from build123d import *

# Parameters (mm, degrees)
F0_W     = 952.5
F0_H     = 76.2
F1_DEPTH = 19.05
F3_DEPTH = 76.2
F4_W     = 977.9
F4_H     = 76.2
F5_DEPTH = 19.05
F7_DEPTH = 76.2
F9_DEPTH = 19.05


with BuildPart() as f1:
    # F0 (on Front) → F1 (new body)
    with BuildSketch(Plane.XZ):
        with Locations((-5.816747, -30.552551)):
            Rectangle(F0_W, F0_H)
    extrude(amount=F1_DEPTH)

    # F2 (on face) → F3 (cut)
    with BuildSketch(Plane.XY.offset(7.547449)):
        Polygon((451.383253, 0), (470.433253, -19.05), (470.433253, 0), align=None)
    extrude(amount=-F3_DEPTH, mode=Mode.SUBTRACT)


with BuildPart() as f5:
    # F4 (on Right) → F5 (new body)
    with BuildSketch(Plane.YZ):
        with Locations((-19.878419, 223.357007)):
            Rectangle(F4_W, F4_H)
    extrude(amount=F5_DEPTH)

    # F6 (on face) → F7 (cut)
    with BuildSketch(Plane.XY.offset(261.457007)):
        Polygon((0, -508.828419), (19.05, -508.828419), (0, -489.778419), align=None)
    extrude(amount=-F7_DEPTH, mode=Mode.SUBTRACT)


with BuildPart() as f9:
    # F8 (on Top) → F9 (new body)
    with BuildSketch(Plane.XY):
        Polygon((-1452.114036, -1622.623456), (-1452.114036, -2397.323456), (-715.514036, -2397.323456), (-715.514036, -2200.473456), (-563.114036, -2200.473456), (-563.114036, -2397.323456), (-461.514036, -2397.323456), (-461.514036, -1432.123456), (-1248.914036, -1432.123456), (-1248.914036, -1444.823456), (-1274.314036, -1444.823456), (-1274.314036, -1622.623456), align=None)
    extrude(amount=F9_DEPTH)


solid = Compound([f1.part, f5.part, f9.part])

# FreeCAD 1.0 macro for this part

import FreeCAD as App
import Part
import Sketcher

V = App.Vector
Q = App.Units.Quantity

doc = App.newDocument("Part")
body = doc.addObject("PartDesign::Body", "Body")

# Sketch on XZ plane
sketch1 = body.newObject("Sketcher::SketchObject", "Sketch")
sketch1.AttachmentSupport = (doc.getObject("XZ_Plane"), [""])
sketch1.MapMode = "FlatFace"
sketch1.addGeometry(Part.LineSegment(V(-482, 8, 0), V(-482, -69, 0)), False)
sketch1.addGeometry(Part.LineSegment(V(-482, -69, 0), V(470, -69, 0)), False)
sketch1.addGeometry(Part.LineSegment(V(470, -69, 0), V(470, 8, 0)), False)
sketch1.addGeometry(Part.LineSegment(V(470, 8, 0), V(-482, 8, 0)), False)
sketch1.addConstraint(Sketcher.Constraint("Coincident", 0, 2, 1, 1))
sketch1.addConstraint(Sketcher.Constraint("Coincident", 1, 2, 2, 1))
sketch1.addConstraint(Sketcher.Constraint("Coincident", 2, 2, 3, 1))
sketch1.addConstraint(Sketcher.Constraint("Coincident", 3, 2, 0, 1))
sketch1.addConstraint(Sketcher.Constraint("Vertical", 0))
sketch1.addConstraint(Sketcher.Constraint("Horizontal", 1))
sketch1.addConstraint(Sketcher.Constraint("Vertical", 2))
sketch1.addConstraint(Sketcher.Constraint("Horizontal", 3))
sketch1.addConstraint(Sketcher.Constraint("DistanceY", 0, 2, 0, 1, Q("3 in")))
sketch1.addConstraint(Sketcher.Constraint("DistanceX", 1, 1, 1, 2, Q("37.5 in")))
sketch1.addConstraint(Sketcher.Constraint("DistanceY", 0, 2, -1, 1, Q("68.652551 mm")))
sketch1.addConstraint(Sketcher.Constraint("DistanceX", 0, 2, -1, 1, Q("482.066747 mm")))
pad1 = body.newObject("PartDesign::Pad", "Pad")
pad1.Profile = sketch1
pad1.Length = Q("0.75 in")

# Sketch on XY plane
sketch2 = body.newObject("Sketcher::SketchObject", "Sketch001")
sketch2.AttachmentSupport = (doc.getObject("XY_Plane"), [""])
sketch2.MapMode = "FlatFace"
sketch2.AttachmentOffset = App.Placement(V(0, 0, 7.547449), App.Rotation())
sketch2.addGeometry(Part.LineSegment(V(451, 0, 0), V(470, -19, 0)), False)
sketch2.addGeometry(Part.LineSegment(V(470, -19, 0), V(470, 0, 0)), False)
sketch2.addGeometry(Part.LineSegment(V(470, 0, 0), V(451, 0, 0)), False)
sketch2.addConstraint(Sketcher.Constraint("Coincident", 0, 2, 1, 1))
sketch2.addConstraint(Sketcher.Constraint("Coincident", 1, 2, 2, 1))
sketch2.addConstraint(Sketcher.Constraint("Coincident", 2, 2, 0, 1))
sketch2.addConstraint(Sketcher.Constraint("Vertical", 1))
sketch2.addConstraint(Sketcher.Constraint("Horizontal", 2))
sketch2.addConstraint(Sketcher.Constraint("PointOnObject", 1, 2, -1))
sketch2.addConstraint(Sketcher.Constraint("Equal", 2, 1))
sketch2.addConstraint(Sketcher.Constraint("DistanceX", 2, 2, 2, 1, Q("0.75 in")))
sketch2.addConstraint(Sketcher.Constraint("DistanceX", -1, 1, 0, 2, Q("470.433253 mm")))
pocket1 = body.newObject("PartDesign::Pocket", "Pocket")
pocket1.Profile = sketch2
pocket1.Length = Q("3 in")
body2 = doc.addObject("PartDesign::Body", "Body001")

# Sketch on YZ plane
sketch3 = body2.newObject("Sketcher::SketchObject", "Sketch002")
sketch3.AttachmentSupport = (doc.getObject("YZ_Plane001"), [""])
sketch3.MapMode = "FlatFace"
sketch3.addGeometry(Part.LineSegment(V(-509, 261, 0), V(-509, 185, 0)), False)
sketch3.addGeometry(Part.LineSegment(V(-509, 185, 0), V(469, 185, 0)), False)
sketch3.addGeometry(Part.LineSegment(V(469, 185, 0), V(469, 261, 0)), False)
sketch3.addGeometry(Part.LineSegment(V(469, 261, 0), V(-509, 261, 0)), False)
sketch3.addConstraint(Sketcher.Constraint("Coincident", 0, 2, 1, 1))
sketch3.addConstraint(Sketcher.Constraint("Coincident", 1, 2, 2, 1))
sketch3.addConstraint(Sketcher.Constraint("Coincident", 2, 2, 3, 1))
sketch3.addConstraint(Sketcher.Constraint("Coincident", 3, 2, 0, 1))
sketch3.addConstraint(Sketcher.Constraint("Vertical", 0))
sketch3.addConstraint(Sketcher.Constraint("Horizontal", 1))
sketch3.addConstraint(Sketcher.Constraint("Vertical", 2))
sketch3.addConstraint(Sketcher.Constraint("Horizontal", 3))
sketch3.addConstraint(Sketcher.Constraint("DistanceY", 0, 2, 0, 1, Q("3 in")))
sketch3.addConstraint(Sketcher.Constraint("DistanceX", 1, 1, 1, 2, Q("38.5 in")))
sketch3.addConstraint(Sketcher.Constraint("DistanceX", 0, 2, -1, 1, Q("508.828419 mm")))
sketch3.addConstraint(Sketcher.Constraint("DistanceY", -1, 1, 0, 2, Q("185.257007 mm")))
pad2 = body2.newObject("PartDesign::Pad", "Pad001")
pad2.Profile = sketch3
pad2.Length = Q("0.75 in")

# Sketch on XY plane
sketch4 = body2.newObject("Sketcher::SketchObject", "Sketch003")
sketch4.AttachmentSupport = (doc.getObject("XY_Plane001"), [""])
sketch4.MapMode = "FlatFace"
sketch4.AttachmentOffset = App.Placement(V(0, 0, 261.457007), App.Rotation())
sketch4.addGeometry(Part.LineSegment(V(0, -509, 0), V(19, -509, 0)), False)
sketch4.addGeometry(Part.LineSegment(V(19, -509, 0), V(0, -490, 0)), False)
sketch4.addGeometry(Part.LineSegment(V(0, -490, 0), V(0, -509, 0)), False)
sketch4.addConstraint(Sketcher.Constraint("Coincident", 0, 2, 1, 1))
sketch4.addConstraint(Sketcher.Constraint("Coincident", 1, 2, 2, 1))
sketch4.addConstraint(Sketcher.Constraint("Coincident", 2, 2, 0, 1))
sketch4.addConstraint(Sketcher.Constraint("Horizontal", 0))
sketch4.addConstraint(Sketcher.Constraint("Vertical", 2))
sketch4.addConstraint(Sketcher.Constraint("PointOnObject", 1, 2, -2))
sketch4.addConstraint(Sketcher.Constraint("Equal", 0, 2))
sketch4.addConstraint(Sketcher.Constraint("DistanceX", 0, 1, 0, 2, Q("0.75 in")))
sketch4.addConstraint(Sketcher.Constraint("DistanceY", 0, 2, -1, 1, Q("508.828419 mm")))
pocket2 = body2.newObject("PartDesign::Pocket", "Pocket001")
pocket2.Profile = sketch4
pocket2.Length = Q("3 in")
body3 = doc.addObject("PartDesign::Body", "Body002")

# Sketch on XY plane
sketch5 = body3.newObject("Sketcher::SketchObject", "Sketch004")
sketch5.AttachmentSupport = (doc.getObject("XY_Plane002"), [""])
sketch5.MapMode = "FlatFace"
sketch5.addGeometry(Part.LineSegment(V(-1452, -1623, 0), V(-1452, -2397, 0)), False)
sketch5.addGeometry(Part.LineSegment(V(-1452, -2397, 0), V(-716, -2397, 0)), False)
sketch5.addGeometry(Part.LineSegment(V(-716, -2397, 0), V(-716, -2200, 0)), False)
sketch5.addGeometry(Part.LineSegment(V(-716, -2200, 0), V(-563, -2200, 0)), False)
sketch5.addGeometry(Part.LineSegment(V(-563, -2200, 0), V(-563, -2397, 0)), False)
sketch5.addGeometry(Part.LineSegment(V(-563, -2397, 0), V(-462, -2397, 0)), False)
sketch5.addGeometry(Part.LineSegment(V(-462, -2397, 0), V(-462, -1432, 0)), False)
sketch5.addGeometry(Part.LineSegment(V(-462, -1432, 0), V(-1249, -1432, 0)), False)
sketch5.addGeometry(Part.LineSegment(V(-1249, -1432, 0), V(-1249, -1445, 0)), False)
sketch5.addGeometry(Part.LineSegment(V(-1249, -1445, 0), V(-1274, -1445, 0)), False)
sketch5.addGeometry(Part.LineSegment(V(-1274, -1445, 0), V(-1274, -1623, 0)), False)
sketch5.addGeometry(Part.LineSegment(V(-1274, -1623, 0), V(-1452, -1623, 0)), False)
sketch5.addConstraint(Sketcher.Constraint("Coincident", 0, 2, 1, 1))
sketch5.addConstraint(Sketcher.Constraint("Coincident", 1, 2, 2, 1))
sketch5.addConstraint(Sketcher.Constraint("Coincident", 2, 2, 3, 1))
sketch5.addConstraint(Sketcher.Constraint("Coincident", 3, 2, 4, 1))
sketch5.addConstraint(Sketcher.Constraint("Coincident", 4, 2, 5, 1))
sketch5.addConstraint(Sketcher.Constraint("Coincident", 5, 2, 6, 1))
sketch5.addConstraint(Sketcher.Constraint("Coincident", 6, 2, 7, 1))
sketch5.addConstraint(Sketcher.Constraint("Coincident", 7, 2, 8, 1))
sketch5.addConstraint(Sketcher.Constraint("Coincident", 8, 2, 9, 1))
sketch5.addConstraint(Sketcher.Constraint("Coincident", 9, 2, 10, 1))
sketch5.addConstraint(Sketcher.Constraint("Coincident", 10, 2, 11, 1))
sketch5.addConstraint(Sketcher.Constraint("Coincident", 11, 2, 0, 1))
sketch5.addConstraint(Sketcher.Constraint("Vertical", 0))
sketch5.addConstraint(Sketcher.Constraint("Horizontal", 1))
sketch5.addConstraint(Sketcher.Constraint("Vertical", 2))
sketch5.addConstraint(Sketcher.Constraint("Horizontal", 3))
sketch5.addConstraint(Sketcher.Constraint("Vertical", 4))
sketch5.addConstraint(Sketcher.Constraint("Horizontal", 5))
sketch5.addConstraint(Sketcher.Constraint("Vertical", 6))
sketch5.addConstraint(Sketcher.Constraint("Horizontal", 7))
sketch5.addConstraint(Sketcher.Constraint("Vertical", 8))
sketch5.addConstraint(Sketcher.Constraint("Horizontal", 9))
sketch5.addConstraint(Sketcher.Constraint("Vertical", 10))
sketch5.addConstraint(Sketcher.Constraint("Horizontal", 11))
sketch5.addConstraint(Sketcher.Constraint("Horizontal", 1, 2, 4, 2))
sketch5.addConstraint(Sketcher.Constraint("Equal", 11, 10))
sketch5.addConstraint(Sketcher.Constraint("DistanceX", 1, 1, 1, 2, Q("29 in")))
sketch5.addConstraint(Sketcher.Constraint("DistanceX", 3, 1, 3, 2, Q("6 in")))
sketch5.addConstraint(Sketcher.Constraint("DistanceX", 5, 1, 5, 2, Q("4 in")))
sketch5.addConstraint(Sketcher.Constraint("DistanceX", 7, 2, 7, 1, Q("31 in")))
sketch5.addConstraint(Sketcher.Constraint("DistanceX", 9, 2, 9, 1, Q("1 in")))
sketch5.addConstraint(Sketcher.Constraint("DistanceY", 6, 1, 6, 2, Q("38 in")))
sketch5.addConstraint(Sketcher.Constraint("DistanceY", 0, 2, 0, 1, Q("30.5 in")))
sketch5.addConstraint(Sketcher.Constraint("DistanceY", 2, 1, 2, 2, Q("7.75 in")))
sketch5.addConstraint(Sketcher.Constraint("DistanceX", 0, 2, -1, 1, Q("1452.114036 mm")))
sketch5.addConstraint(Sketcher.Constraint("DistanceY", 0, 2, -1, 1, Q("2397.323456 mm")))
pad3 = body3.newObject("PartDesign::Pad", "Pad002")
pad3.Profile = sketch5
pad3.Length = Q("0.75 in")

doc.recompute()
